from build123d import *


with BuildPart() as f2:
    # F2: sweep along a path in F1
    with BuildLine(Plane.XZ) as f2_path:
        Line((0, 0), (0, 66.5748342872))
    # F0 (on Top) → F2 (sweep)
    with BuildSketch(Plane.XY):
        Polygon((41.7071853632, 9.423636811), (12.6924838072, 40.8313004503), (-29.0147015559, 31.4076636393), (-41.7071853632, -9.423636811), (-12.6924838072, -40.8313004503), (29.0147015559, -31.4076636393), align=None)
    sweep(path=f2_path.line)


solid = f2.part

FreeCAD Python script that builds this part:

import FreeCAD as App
import Part
import Sketcher

V = App.Vector
Q = App.Units.Quantity


def add_polygon(sketch, points):
    """Adds a closed chain of lines whose ends are joined by coincident constraints."""
    first, n = sketch.GeometryCount, len(points)
    for a, b in zip(points, points[1:] + points[:1]):
        sketch.addGeometry(Part.LineSegment(App.Vector(*a, 0), App.Vector(*b, 0)), False)
    for i in range(n):
        sketch.addConstraint(Sketcher.Constraint("Coincident", first + i, 2, first + (i + 1) % n, 1))

doc = App.newDocument("Part")
body = doc.addObject("PartDesign::Body", "Body")

sketch1 = doc.addObject("Sketcher::SketchObject", "Sketch")
body.addObject(sketch1)
sketch1.AttachmentSupport = (doc.XY_Plane, [""])
sketch1.MapMode = "FlatFace"
add_polygon(sketch1, [(42, 9), (13, 41), (-29, 31), (-42, -9), (-13, -41), (29, -31)])
sketch1.addConstraint(Sketcher.Constraint("Symmetric", 0, 2, 3, 2, -1, 1))
sketch1.addConstraint(Sketcher.Constraint("Symmetric", 1, 2, 4, 2, -1, 1))
sketch1.addConstraint(Sketcher.Constraint("Symmetric", 2, 2, 5, 2, -1, 1))
sketch1.addConstraint(Sketcher.Constraint("Equal", 0, 1))
sketch1.addConstraint(Sketcher.Constraint("Equal", 1, 2))
sketch1.addConstraint(Sketcher.Constraint("DistanceY", -1, 1, 0, 2, Q("40.8313 mm")))
sketch1.addConstraint(Sketcher.Constraint("DistanceX", 1, 2, -1, 1, Q("29.014702 mm")))
sketch1.addConstraint(Sketcher.Constraint("DistanceY", 2, 2, 1, 2, Q("40.8313 mm")))
sketch1.addConstraint(Sketcher.Constraint("DistanceX", 2, 2, 3, 2, Q("29.014702 mm")))

sketch2 = doc.addObject("Sketcher::SketchObject", "Sketch001")
body.addObject(sketch2)
sketch2.AttachmentSupport = (doc.XZ_Plane, [""])
sketch2.MapMode = "FlatFace"
sketch2.addGeometry(Part.LineSegment(V(0, 0, 0), V(0, 67, 0)), False)
sketch2.addConstraint(Sketcher.Constraint("Vertical", 0))
sketch2.addConstraint(Sketcher.Constraint("Coincident", 0, 1, -1, 1))
sketch2.addConstraint(Sketcher.Constraint("DistanceY", 0, 1, 0, 2, Q("66.574834 mm")))
doc.recompute()

additivepipe = doc.addObject("PartDesign::AdditivePipe", "AdditivePipe")
body.addObject(additivepipe)
additivepipe.Profile = sketch1
additivepipe.Spine = (sketch2, ["Edge1"])

doc.recompute()
